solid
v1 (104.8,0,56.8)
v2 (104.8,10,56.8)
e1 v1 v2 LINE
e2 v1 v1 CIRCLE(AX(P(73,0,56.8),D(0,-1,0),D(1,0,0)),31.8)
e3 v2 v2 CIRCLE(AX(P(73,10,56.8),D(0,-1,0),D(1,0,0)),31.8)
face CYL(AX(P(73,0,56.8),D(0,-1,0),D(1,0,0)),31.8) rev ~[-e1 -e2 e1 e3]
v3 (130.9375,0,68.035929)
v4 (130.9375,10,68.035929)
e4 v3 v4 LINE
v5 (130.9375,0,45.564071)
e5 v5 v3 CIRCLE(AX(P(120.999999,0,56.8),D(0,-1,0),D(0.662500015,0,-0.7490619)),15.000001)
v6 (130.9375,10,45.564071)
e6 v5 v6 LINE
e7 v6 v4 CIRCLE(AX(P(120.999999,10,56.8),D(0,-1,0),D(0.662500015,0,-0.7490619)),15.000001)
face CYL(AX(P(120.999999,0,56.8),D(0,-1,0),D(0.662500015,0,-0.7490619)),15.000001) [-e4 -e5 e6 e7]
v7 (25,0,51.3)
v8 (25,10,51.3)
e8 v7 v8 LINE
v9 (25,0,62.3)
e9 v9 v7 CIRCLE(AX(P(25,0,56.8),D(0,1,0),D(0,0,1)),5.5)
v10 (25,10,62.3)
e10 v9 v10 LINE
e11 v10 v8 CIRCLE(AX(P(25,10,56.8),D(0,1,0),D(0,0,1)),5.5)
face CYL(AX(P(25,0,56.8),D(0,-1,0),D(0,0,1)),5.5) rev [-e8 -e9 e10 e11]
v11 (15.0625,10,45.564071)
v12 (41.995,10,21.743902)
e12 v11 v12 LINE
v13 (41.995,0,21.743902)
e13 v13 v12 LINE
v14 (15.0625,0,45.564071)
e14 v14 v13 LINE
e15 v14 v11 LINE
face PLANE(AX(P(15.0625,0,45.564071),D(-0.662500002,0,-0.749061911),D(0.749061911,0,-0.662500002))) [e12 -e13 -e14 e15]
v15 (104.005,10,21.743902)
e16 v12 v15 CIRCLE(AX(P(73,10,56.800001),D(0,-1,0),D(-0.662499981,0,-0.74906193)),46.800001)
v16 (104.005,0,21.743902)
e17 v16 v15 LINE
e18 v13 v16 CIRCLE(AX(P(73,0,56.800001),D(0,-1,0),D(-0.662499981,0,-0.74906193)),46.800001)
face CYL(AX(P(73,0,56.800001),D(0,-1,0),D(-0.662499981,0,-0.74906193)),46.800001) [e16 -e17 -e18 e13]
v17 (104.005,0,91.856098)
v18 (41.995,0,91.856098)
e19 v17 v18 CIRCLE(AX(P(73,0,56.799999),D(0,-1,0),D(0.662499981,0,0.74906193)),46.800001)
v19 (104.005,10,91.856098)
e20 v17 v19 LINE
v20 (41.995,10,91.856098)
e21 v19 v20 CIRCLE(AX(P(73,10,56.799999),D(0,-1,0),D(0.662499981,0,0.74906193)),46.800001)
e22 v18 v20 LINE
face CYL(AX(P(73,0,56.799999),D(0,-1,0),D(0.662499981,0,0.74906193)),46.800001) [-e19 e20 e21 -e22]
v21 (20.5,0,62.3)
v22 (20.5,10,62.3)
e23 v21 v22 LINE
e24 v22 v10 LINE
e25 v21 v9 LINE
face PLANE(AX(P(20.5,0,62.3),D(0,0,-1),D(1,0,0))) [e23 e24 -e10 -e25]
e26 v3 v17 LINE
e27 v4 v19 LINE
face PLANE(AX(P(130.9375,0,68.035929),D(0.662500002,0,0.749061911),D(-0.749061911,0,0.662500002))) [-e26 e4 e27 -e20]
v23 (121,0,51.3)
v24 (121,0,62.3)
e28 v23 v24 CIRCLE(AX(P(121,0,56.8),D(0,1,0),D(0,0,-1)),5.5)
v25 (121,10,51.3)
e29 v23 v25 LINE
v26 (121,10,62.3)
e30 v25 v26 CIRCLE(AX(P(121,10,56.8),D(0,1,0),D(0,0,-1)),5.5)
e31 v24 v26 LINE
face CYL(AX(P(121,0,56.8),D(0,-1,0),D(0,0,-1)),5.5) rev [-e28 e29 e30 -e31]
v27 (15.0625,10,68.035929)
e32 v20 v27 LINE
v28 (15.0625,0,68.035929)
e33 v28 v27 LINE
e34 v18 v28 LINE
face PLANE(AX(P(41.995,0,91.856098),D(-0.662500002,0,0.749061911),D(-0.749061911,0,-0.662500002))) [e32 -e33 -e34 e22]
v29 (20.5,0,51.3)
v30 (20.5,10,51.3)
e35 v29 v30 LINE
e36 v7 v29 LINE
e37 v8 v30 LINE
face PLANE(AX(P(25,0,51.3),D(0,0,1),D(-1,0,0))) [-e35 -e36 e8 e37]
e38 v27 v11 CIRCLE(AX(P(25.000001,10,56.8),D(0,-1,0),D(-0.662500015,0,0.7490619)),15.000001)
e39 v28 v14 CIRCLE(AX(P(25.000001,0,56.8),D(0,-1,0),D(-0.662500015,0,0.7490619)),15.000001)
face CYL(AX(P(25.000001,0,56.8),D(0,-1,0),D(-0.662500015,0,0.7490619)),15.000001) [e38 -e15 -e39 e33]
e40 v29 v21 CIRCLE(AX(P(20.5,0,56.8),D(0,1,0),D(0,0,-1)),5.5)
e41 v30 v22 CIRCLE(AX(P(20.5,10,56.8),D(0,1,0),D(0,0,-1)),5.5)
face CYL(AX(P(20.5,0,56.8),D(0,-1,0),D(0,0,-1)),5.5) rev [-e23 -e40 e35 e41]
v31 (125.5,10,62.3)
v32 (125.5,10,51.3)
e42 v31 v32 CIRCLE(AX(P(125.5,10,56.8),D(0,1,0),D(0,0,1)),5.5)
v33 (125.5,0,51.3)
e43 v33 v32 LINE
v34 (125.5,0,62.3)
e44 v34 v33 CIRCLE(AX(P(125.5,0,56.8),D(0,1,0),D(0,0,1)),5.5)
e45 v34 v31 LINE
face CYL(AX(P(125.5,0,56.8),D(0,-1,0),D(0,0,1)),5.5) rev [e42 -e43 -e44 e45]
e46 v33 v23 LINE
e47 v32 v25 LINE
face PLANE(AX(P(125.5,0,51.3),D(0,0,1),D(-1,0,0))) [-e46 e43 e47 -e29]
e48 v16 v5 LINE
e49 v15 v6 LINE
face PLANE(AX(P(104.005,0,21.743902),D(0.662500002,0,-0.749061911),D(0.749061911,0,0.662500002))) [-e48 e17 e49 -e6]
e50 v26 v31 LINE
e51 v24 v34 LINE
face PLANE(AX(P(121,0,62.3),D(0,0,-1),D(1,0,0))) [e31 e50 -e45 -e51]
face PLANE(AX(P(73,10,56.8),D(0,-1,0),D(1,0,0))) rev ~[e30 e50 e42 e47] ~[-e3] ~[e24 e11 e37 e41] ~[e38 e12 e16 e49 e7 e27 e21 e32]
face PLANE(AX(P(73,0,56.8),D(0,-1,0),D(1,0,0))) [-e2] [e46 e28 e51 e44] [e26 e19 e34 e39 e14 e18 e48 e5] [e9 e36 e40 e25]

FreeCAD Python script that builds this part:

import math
import FreeCAD as App
import Part
import Sketcher

doc = App.newDocument("Part")
params = doc.addObject("Spreadsheet::Sheet", "Params")
for row, (alias, value) in enumerate([
    ("sketch1_radius", "15.000001 mm"),
    ("sketch1_diameter", "63.6 mm"),
    ("sketch1_radius2", "46.800001 mm"),
    ("sketch1_radius3", "5.5 mm"),
    ("sketch1_width", "4.5 mm"),
    ("pad1_length", "10 mm"),
], start=1):
    params.set(f"A{row}", alias)
    params.set(f"B{row}", "=" + value)
    params.setAlias(f"B{row}", alias)

body = doc.addObject("PartDesign::Body", "Body")

# Sketch on XZ plane
sketch1 = body.newObject("Sketcher::SketchObject", "Sketch")
sketch1.AttachmentSupport = (doc.getObject("XZ_Plane"), [""])
sketch1.MapMode = "FlatFace"
sketch1.addGeometry(Part.LineSegment(App.Vector(15.1, 45.6, 0), App.Vector(42, 21.7, 0)), False)
sketch1.addGeometry(Part.ArcOfCircle(Part.Circle(App.Vector(73, 56.8, 0), App.Vector(0, 0, 1), 46.8), math.radians(-131), math.radians(-49)), False)
sketch1.addGeometry(Part.LineSegment(App.Vector(104, 21.7, 0), App.Vector(130.9, 45.6, 0)), False)
sketch1.addGeometry(Part.ArcOfCircle(Part.Circle(App.Vector(121, 56.8, 0), App.Vector(0, 0, 1), 15), math.radians(-49), math.radians(49)), False)
sketch1.addGeometry(Part.LineSegment(App.Vector(130.9, 68, 0), App.Vector(104, 91.9, 0)), False)
sketch1.addGeometry(Part.ArcOfCircle(Part.Circle(App.Vector(73, 56.8, 0), App.Vector(0, 0, 1), 46.8), math.radians(49), math.radians(131)), False)
sketch1.addGeometry(Part.LineSegment(App.Vector(42, 91.9, 0), App.Vector(15.1, 68, 0)), False)
sketch1.addGeometry(Part.ArcOfCircle(Part.Circle(App.Vector(25, 56.8, 0), App.Vector(0, 0, 1), 15), math.radians(131), math.radians(229)), False)
sketch1.addGeometry(Part.LineSegment(App.Vector(20.5, 62.3, 0), App.Vector(25, 62.3, 0)), False)
sketch1.addGeometry(Part.ArcOfCircle(Part.Circle(App.Vector(25, 56.8, 0), App.Vector(0, 0, 1), 5.5), math.radians(-90), math.radians(90)), False)
sketch1.addGeometry(Part.LineSegment(App.Vector(25, 51.3, 0), App.Vector(20.5, 51.3, 0)), False)
sketch1.addGeometry(Part.ArcOfCircle(Part.Circle(App.Vector(20.5, 56.8, 0), App.Vector(0, 0, 1), 5.5), math.radians(90), math.radians(270)), False)
sketch1.addGeometry(Part.Circle(App.Vector(73, 56.8, 0), App.Vector(0, 0, 1), 31.8), False)
sketch1.addGeometry(Part.ArcOfCircle(Part.Circle(App.Vector(125.5, 56.8, 0), App.Vector(0, 0, 1), 5.5), math.radians(-90), math.radians(90)), False)
sketch1.addGeometry(Part.LineSegment(App.Vector(125.5, 51.3, 0), App.Vector(121, 51.3, 0)), False)
sketch1.addGeometry(Part.ArcOfCircle(Part.Circle(App.Vector(121, 56.8, 0), App.Vector(0, 0, 1), 5.5), math.radians(90), math.radians(270)), False)
sketch1.addGeometry(Part.LineSegment(App.Vector(121, 62.3, 0), App.Vector(125.5, 62.3, 0)), False)
sketch1.addConstraint(Sketcher.Constraint("Tangent", 0, 2, 1, 1))
sketch1.addConstraint(Sketcher.Constraint("Tangent", 1, 2, 2, 1))
sketch1.addConstraint(Sketcher.Constraint("Tangent", 2, 2, 3, 1))
sketch1.addConstraint(Sketcher.Constraint("Tangent", 3, 2, 4, 1))
sketch1.addConstraint(Sketcher.Constraint("Tangent", 4, 2, 5, 1))
sketch1.addConstraint(Sketcher.Constraint("Tangent", 5, 2, 6, 1))
sketch1.addConstraint(Sketcher.Constraint("Tangent", 6, 2, 7, 1))
sketch1.addConstraint(Sketcher.Constraint("Tangent", 7, 2, 0, 1))
sketch1.addConstraint(Sketcher.Constraint("Tangent", 8, 2, 9, 2))
sketch1.addConstraint(Sketcher.Constraint("Tangent", 9, 1, 10, 1))
sketch1.addConstraint(Sketcher.Constraint("Tangent", 10, 2, 11, 2))
sketch1.addConstraint(Sketcher.Constraint("Tangent", 11, 1, 8, 1))
sketch1.addConstraint(Sketcher.Constraint("Tangent", 13, 1, 14, 1))
sketch1.addConstraint(Sketcher.Constraint("Tangent", 14, 2, 15, 2))
sketch1.addConstraint(Sketcher.Constraint("Tangent", 15, 1, 16, 1))
sketch1.addConstraint(Sketcher.Constraint("Tangent", 16, 2, 13, 2))
sketch1.addConstraint(Sketcher.Constraint("Horizontal", 8))
sketch1.addConstraint(Sketcher.Constraint("Horizontal", 10))
sketch1.addConstraint(Sketcher.Constraint("Horizontal", 14))
sketch1.addConstraint(Sketcher.Constraint("Horizontal", 16))
sketch1.addConstraint(Sketcher.Constraint("Coincident", 5, 3, 1, 3))
sketch1.addConstraint(Sketcher.Constraint("Coincident", 9, 3, 7, 3))
sketch1.addConstraint(Sketcher.Constraint("Coincident", 12, 3, 1, 3))
sketch1.addConstraint(Sketcher.Constraint("Coincident", 15, 3, 3, 3))
sketch1.addConstraint(Sketcher.Constraint("Equal", 1, 5))
sketch1.addConstraint(Sketcher.Constraint("Equal", 3, 7))
sketch1.addConstraint(Sketcher.Constraint("Equal", 11, 13))
sketch1.addConstraint(Sketcher.Constraint("Parallel", 0, 4))
sketch1.addConstraint(Sketcher.Constraint("Parallel", 2, 6))
sketch1.addConstraint(Sketcher.Constraint("Horizontal", 1, 3, 3, 3))
sketch1.addConstraint(Sketcher.Constraint("Equal", 10, 14))
sketch1.addConstraint(Sketcher.Constraint("Radius", 3, 15.000001))
sketch1.addConstraint(Sketcher.Constraint("Diameter", 12, 63.6))
sketch1.addConstraint(Sketcher.Constraint("Radius", 1, 46.800001))
sketch1.addConstraint(Sketcher.Constraint("Radius", 9, 5.5))
sketch1.addConstraint(Sketcher.Constraint("DistanceX", 8, 1, 8, 2, 4.5))
sketch1.addConstraint(Sketcher.Constraint("DistanceX", -1, 1, 1, 3, 73.0))
sketch1.addConstraint(Sketcher.Constraint("DistanceX", -1, 1, 3, 3, 120.999999))
sketch1.addConstraint(Sketcher.Constraint("DistanceY", -1, 1, 1, 3, 56.800001))
sketch1.setExpression("Constraints[31]", "Params.sketch1_radius")
sketch1.setExpression("Constraints[32]", "Params.sketch1_diameter")
sketch1.setExpression("Constraints[33]", "Params.sketch1_radius2")
sketch1.setExpression("Constraints[34]", "Params.sketch1_radius3")
sketch1.setExpression("Constraints[35]", "Params.sketch1_width")
pad1 = body.newObject("PartDesign::Pad", "Pad")
pad1.Profile = sketch1
pad1.setExpression("Length", "Params.pad1_length")
pad1.Reversed = True

doc.recompute()
